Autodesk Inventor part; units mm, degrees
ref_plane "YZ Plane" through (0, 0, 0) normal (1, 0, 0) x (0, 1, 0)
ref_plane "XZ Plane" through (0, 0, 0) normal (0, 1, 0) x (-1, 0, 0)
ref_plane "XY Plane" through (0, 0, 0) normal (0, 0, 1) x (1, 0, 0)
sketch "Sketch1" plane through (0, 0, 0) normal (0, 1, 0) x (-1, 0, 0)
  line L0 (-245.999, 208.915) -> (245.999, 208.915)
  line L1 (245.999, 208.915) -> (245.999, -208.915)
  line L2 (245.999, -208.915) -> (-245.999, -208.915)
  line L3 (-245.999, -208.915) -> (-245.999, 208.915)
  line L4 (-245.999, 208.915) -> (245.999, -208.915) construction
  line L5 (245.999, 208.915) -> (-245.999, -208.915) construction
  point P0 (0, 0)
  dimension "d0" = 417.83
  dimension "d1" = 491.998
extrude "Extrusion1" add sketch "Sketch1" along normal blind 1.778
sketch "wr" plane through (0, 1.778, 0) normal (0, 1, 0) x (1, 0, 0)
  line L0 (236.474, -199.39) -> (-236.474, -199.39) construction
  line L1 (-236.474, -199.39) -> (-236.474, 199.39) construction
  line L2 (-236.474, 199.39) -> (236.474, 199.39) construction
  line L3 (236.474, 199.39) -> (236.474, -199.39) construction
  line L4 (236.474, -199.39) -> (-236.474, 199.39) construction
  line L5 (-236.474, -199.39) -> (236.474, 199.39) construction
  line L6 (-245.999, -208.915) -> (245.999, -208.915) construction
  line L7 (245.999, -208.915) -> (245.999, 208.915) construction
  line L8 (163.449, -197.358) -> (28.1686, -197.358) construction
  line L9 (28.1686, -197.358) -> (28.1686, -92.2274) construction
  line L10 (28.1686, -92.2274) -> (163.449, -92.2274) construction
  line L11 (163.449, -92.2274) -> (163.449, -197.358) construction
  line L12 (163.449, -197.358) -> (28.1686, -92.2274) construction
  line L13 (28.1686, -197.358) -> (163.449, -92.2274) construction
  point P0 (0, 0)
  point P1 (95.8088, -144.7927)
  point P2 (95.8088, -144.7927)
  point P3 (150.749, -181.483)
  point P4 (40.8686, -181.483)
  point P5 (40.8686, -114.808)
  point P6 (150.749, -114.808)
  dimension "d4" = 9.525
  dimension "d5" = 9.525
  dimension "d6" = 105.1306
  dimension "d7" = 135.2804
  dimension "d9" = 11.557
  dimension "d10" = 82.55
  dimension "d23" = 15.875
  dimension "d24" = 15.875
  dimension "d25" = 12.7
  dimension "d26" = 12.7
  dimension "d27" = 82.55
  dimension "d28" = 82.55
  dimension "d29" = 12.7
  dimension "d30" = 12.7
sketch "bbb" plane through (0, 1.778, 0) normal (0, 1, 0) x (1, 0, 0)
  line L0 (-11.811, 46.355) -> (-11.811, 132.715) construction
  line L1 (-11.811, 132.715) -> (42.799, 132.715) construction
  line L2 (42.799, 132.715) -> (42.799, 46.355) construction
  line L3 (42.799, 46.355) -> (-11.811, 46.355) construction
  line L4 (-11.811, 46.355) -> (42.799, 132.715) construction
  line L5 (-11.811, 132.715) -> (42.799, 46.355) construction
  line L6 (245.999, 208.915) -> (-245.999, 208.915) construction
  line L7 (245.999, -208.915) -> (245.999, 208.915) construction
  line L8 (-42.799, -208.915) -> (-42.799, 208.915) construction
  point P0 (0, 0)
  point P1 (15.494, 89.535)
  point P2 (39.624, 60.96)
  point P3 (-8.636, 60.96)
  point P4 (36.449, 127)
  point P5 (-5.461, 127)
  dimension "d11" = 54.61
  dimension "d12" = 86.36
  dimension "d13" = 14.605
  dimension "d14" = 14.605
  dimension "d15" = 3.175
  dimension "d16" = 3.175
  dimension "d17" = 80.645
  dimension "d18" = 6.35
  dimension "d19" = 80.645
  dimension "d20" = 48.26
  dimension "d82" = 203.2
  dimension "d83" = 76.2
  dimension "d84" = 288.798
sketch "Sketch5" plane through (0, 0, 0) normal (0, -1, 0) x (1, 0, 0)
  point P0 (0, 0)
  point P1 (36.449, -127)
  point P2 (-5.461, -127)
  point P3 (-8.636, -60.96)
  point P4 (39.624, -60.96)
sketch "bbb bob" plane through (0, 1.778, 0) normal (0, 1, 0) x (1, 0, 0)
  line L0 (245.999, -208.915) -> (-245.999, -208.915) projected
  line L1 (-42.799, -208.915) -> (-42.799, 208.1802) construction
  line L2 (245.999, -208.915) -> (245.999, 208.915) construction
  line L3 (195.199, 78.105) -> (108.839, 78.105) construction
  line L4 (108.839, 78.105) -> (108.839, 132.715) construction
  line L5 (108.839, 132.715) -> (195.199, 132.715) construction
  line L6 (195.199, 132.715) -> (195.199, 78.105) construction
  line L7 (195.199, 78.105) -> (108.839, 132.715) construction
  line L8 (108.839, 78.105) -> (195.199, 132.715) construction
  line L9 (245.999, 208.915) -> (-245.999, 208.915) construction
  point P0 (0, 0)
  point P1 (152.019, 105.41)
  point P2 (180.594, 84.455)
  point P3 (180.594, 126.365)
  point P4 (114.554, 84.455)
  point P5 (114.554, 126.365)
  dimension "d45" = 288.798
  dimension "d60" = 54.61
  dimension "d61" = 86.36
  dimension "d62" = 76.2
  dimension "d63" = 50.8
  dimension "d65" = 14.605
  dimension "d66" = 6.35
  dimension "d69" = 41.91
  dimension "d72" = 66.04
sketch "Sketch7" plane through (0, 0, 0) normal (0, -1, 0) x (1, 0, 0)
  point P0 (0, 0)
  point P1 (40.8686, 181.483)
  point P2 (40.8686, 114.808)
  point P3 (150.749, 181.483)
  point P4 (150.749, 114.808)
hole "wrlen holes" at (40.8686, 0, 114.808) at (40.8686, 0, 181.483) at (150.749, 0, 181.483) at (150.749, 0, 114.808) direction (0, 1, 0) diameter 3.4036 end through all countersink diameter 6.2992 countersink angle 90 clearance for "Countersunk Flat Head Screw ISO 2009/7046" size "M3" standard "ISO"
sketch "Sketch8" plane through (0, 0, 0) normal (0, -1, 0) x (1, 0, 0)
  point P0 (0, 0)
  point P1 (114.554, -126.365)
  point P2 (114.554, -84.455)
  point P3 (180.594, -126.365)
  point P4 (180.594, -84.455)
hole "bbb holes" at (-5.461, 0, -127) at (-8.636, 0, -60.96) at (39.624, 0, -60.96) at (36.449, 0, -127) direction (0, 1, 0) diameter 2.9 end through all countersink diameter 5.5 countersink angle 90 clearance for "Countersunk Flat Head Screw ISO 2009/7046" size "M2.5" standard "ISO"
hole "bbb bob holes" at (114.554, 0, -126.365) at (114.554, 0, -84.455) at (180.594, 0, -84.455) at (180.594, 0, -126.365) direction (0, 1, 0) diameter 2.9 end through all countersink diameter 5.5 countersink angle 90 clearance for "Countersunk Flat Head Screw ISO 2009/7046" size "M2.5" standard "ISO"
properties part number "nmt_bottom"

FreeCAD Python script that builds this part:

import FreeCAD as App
import Part
import Sketcher
Q = App.Units.Quantity


def add_polygon(sketch, points):
    """Adds a closed chain of lines whose ends are joined by coincident constraints."""
    first, n = sketch.GeometryCount, len(points)
    for a, b in zip(points, points[1:] + points[:1]):
        sketch.addGeometry(Part.LineSegment(App.Vector(*a, 0), App.Vector(*b, 0)), False)
    for i in range(n):
        sketch.addConstraint(Sketcher.Constraint("Coincident", first + i, 2, first + (i + 1) % n, 1))

doc = App.newDocument("Part")
body = doc.addObject("PartDesign::Body", "Body")

# Sketch on XZ plane
sketch1 = body.newObject("Sketcher::SketchObject", "Sketch")
sketch1.AttachmentSupport = (doc.getObject("XZ_Plane"), [""])
sketch1.MapMode = "FlatFace"
add_polygon(sketch1, [(-246, 209), (246, 209), (246, -209), (-246, -209)])  # lines 0-3
sketch1.addConstraint(Sketcher.Constraint("Horizontal", 0))
sketch1.addConstraint(Sketcher.Constraint("Vertical", 1))
sketch1.addConstraint(Sketcher.Constraint("Horizontal", 2))
sketch1.addConstraint(Sketcher.Constraint("Vertical", 3))
sketch1.addConstraint(Sketcher.Constraint("Symmetric", 0, 2, 2, 2, -1, 1))
sketch1.addConstraint(Sketcher.Constraint("DistanceX", 0, 1, 0, 2, Q("19.37 in")))
sketch1.addConstraint(Sketcher.Constraint("DistanceY", 1, 2, 1, 1, Q("16.45 in")))
pad1 = body.newObject("PartDesign::Pad", "Pad")
pad1.Profile = sketch1
pad1.Length = Q("0.07 in")
pad1.Reversed = True

# Sketch on XZ plane
sketch2 = body.newObject("Sketcher::SketchObject", "Sketch001")
sketch2.AttachmentSupport = (doc.getObject("XZ_Plane"), [""])
sketch2.MapMode = "FlatFace"
sketch2.addGeometry(Part.Circle(App.Vector(40.9, 114.8, 0), App.Vector(0, 0, 1), 1.7), False)
sketch2.addGeometry(Part.Circle(App.Vector(40.9, 181.5, 0), App.Vector(0, 0, 1), 1.7), False)
sketch2.addGeometry(Part.Circle(App.Vector(150.7, 181.5, 0), App.Vector(0, 0, 1), 1.7), False)
sketch2.addGeometry(Part.Circle(App.Vector(150.7, 114.8, 0), App.Vector(0, 0, 1), 1.7), False)
sketch2.addConstraint(Sketcher.Constraint("Equal", 0, 1))
sketch2.addConstraint(Sketcher.Constraint("Equal", 1, 2))
sketch2.addConstraint(Sketcher.Constraint("Equal", 2, 3))
sketch2.addConstraint(Sketcher.Constraint("Horizontal", 1, 3, 2, 3))
sketch2.addConstraint(Sketcher.Constraint("Horizontal", 0, 3, 3, 3))
sketch2.addConstraint(Sketcher.Constraint("Vertical", 0, 3, 1, 3))
sketch2.addConstraint(Sketcher.Constraint("Vertical", 2, 3, 3, 3))
sketch2.addConstraint(Sketcher.Constraint("Diameter", 0, Q("0.134 in")))
sketch2.addConstraint(Sketcher.Constraint("DistanceY", -1, 1, 0, 3, Q("4.52 in")))
sketch2.addConstraint(Sketcher.Constraint("DistanceX", -1, 1, 0, 3, Q("1.609 in")))
sketch2.addConstraint(Sketcher.Constraint("DistanceY", -1, 1, 1, 3, Q("7.145 in")))
sketch2.addConstraint(Sketcher.Constraint("DistanceX", -1, 1, 2, 3, Q("5.935 in")))
doc.recompute()
hole = body.newObject("PartDesign::Hole", "Hole")
hole.Profile = sketch2
hole.ThreadType = "None"
hole.Diameter = Q("0.134 in")
hole.DepthType = "ThroughAll"
hole.HoleCutType = "Countersink"
hole.HoleCutDiameter = Q("0.248 in")
hole.HoleCutCountersinkAngle = 90

# Sketch on XZ plane
sketch3 = body.newObject("Sketcher::SketchObject", "Sketch002")
sketch3.AttachmentSupport = (doc.getObject("XZ_Plane"), [""])
sketch3.MapMode = "FlatFace"
sketch3.addGeometry(Part.Circle(App.Vector(-5.5, -127, 0), App.Vector(0, 0, 1), 1.4), False)
sketch3.addGeometry(Part.Circle(App.Vector(-8.6, -61, 0), App.Vector(0, 0, 1), 1.4), False)
sketch3.addGeometry(Part.Circle(App.Vector(39.6, -61, 0), App.Vector(0, 0, 1), 1.4), False)
sketch3.addGeometry(Part.Circle(App.Vector(36.4, -127, 0), App.Vector(0, 0, 1), 1.4), False)
sketch3.addConstraint(Sketcher.Constraint("Equal", 0, 1))
sketch3.addConstraint(Sketcher.Constraint("Equal", 1, 2))
sketch3.addConstraint(Sketcher.Constraint("Equal", 2, 3))
sketch3.addConstraint(Sketcher.Constraint("Horizontal", 1, 3, 2, 3))
sketch3.addConstraint(Sketcher.Constraint("Horizontal", 0, 3, 3, 3))
sketch3.addConstraint(Sketcher.Constraint("DistanceY", 0, 3, -1, 1, Q("5 in")))
sketch3.addConstraint(Sketcher.Constraint("DistanceY", 1, 3, -1, 1, Q("2.4 in")))
sketch3.addConstraint(Sketcher.Constraint("DistanceX", 1, 3, 2, 3, Q("1.9 in")))
sketch3.addConstraint(Sketcher.Constraint("Diameter", 0, Q("2.9 mm")))
sketch3.addConstraint(Sketcher.Constraint("DistanceX", 1, 3, -1, 1, Q("0.34 in")))
sketch3.addConstraint(Sketcher.Constraint("DistanceX", 0, 3, 3, 3, Q("1.65 in")))
sketch3.addConstraint(Sketcher.Constraint("DistanceX", 0, 3, -1, 1, Q("0.215 in")))
doc.recompute()
hole2 = body.newObject("PartDesign::Hole", "Hole001")
hole2.Profile = sketch3
hole2.ThreadType = "None"
hole2.Diameter = 2.9
hole2.DepthType = "ThroughAll"
hole2.HoleCutType = "Countersink"
hole2.HoleCutDiameter = 5.5
hole2.HoleCutCountersinkAngle = 90

# Sketch on XZ plane
sketch4 = body.newObject("Sketcher::SketchObject", "Sketch003")
sketch4.AttachmentSupport = (doc.getObject("XZ_Plane"), [""])
sketch4.MapMode = "FlatFace"
sketch4.addGeometry(Part.Circle(App.Vector(114.6, -126.4, 0), App.Vector(0, 0, 1), 1.4), False)
sketch4.addGeometry(Part.Circle(App.Vector(114.6, -84.5, 0), App.Vector(0, 0, 1), 1.4), False)
sketch4.addGeometry(Part.Circle(App.Vector(180.6, -84.5, 0), App.Vector(0, 0, 1), 1.4), False)
sketch4.addGeometry(Part.Circle(App.Vector(180.6, -126.4, 0), App.Vector(0, 0, 1), 1.4), False)
sketch4.addConstraint(Sketcher.Constraint("Equal", 0, 1))
sketch4.addConstraint(Sketcher.Constraint("Equal", 1, 2))
sketch4.addConstraint(Sketcher.Constraint("Equal", 2, 3))
sketch4.addConstraint(Sketcher.Constraint("Horizontal", 1, 3, 2, 3))
sketch4.addConstraint(Sketcher.Constraint("Horizontal", 0, 3, 3, 3))
sketch4.addConstraint(Sketcher.Constraint("Vertical", 0, 3, 1, 3))
sketch4.addConstraint(Sketcher.Constraint("Vertical", 2, 3, 3, 3))
sketch4.addConstraint(Sketcher.Constraint("DistanceX", 1, 3, 2, 3, Q("2.6 in")))
sketch4.addConstraint(Sketcher.Constraint("Diameter", 0, Q("2.9 mm")))
sketch4.addConstraint(Sketcher.Constraint("DistanceX", -1, 1, 0, 3, Q("4.51 in")))
sketch4.addConstraint(Sketcher.Constraint("DistanceY", 0, 3, 1, 3, Q("1.65 in")))
sketch4.addConstraint(Sketcher.Constraint("DistanceY", 0, 3, -1, 1, Q("4.975 in")))
doc.recompute()
hole3 = body.newObject("PartDesign::Hole", "Hole002")
hole3.Profile = sketch4
hole3.ThreadType = "None"
hole3.Diameter = 2.9
hole3.DepthType = "ThroughAll"
hole3.HoleCutType = "Countersink"
hole3.HoleCutDiameter = 5.5
hole3.HoleCutCountersinkAngle = 90

doc.recompute()
